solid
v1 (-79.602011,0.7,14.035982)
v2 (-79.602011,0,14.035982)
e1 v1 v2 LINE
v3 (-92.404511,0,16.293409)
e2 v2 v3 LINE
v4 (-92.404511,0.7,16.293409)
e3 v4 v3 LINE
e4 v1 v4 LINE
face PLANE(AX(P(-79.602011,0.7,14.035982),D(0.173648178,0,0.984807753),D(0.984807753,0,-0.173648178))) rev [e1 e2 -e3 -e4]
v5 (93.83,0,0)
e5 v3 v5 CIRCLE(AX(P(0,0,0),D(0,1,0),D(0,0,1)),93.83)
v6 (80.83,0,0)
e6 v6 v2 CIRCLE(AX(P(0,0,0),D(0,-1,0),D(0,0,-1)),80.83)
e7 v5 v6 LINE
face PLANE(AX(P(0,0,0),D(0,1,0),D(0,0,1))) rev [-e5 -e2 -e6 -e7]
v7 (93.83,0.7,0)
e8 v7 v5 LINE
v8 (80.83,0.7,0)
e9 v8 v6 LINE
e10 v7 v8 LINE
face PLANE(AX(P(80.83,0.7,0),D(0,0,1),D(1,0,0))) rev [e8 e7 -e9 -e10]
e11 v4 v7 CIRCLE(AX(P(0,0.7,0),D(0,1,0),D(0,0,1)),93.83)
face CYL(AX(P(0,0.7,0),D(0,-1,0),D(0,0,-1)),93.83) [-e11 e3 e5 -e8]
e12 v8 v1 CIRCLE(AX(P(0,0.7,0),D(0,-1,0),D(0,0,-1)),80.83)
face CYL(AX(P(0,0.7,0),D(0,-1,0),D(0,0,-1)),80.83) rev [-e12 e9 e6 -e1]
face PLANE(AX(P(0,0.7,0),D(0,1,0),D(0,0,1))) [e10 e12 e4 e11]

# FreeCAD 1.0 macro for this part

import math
import FreeCAD as App
import Part
import Sketcher

V = App.Vector
Q = App.Units.Quantity

doc = App.newDocument("Part")
body = doc.addObject("PartDesign::Body", "Body")

# Sketch on XZ plane
sketch1 = body.newObject("Sketcher::SketchObject", "Sketch")
sketch1.AttachmentSupport = (doc.getObject("XZ_Plane"), [""])
sketch1.MapMode = "FlatFace"
sketch1.addGeometry(Part.LineSegment(V(-79.602011, 14.035982, 0), V(-92.404511, 16.293409, 0)), False)
sketch1.addGeometry(Part.ArcOfCircle(Part.Circle(V(0, 0, 0), V(0, 0, 1), 93.83), math.radians(0), math.radians(170)), False)
sketch1.addGeometry(Part.LineSegment(V(93.83, 0, 0), V(80.83, 0, 0)), False)
sketch1.addGeometry(Part.ArcOfCircle(Part.Circle(V(0, 0, 0), V(0, 0, 1), 80.83), math.radians(0), math.radians(170)), False)
sketch1.addConstraint(Sketcher.Constraint("Coincident", 0, 2, 1, 2))
sketch1.addConstraint(Sketcher.Constraint("Coincident", 1, 1, 2, 1))
sketch1.addConstraint(Sketcher.Constraint("Coincident", 2, 2, 3, 1))
sketch1.addConstraint(Sketcher.Constraint("Coincident", 3, 2, 0, 1))
sketch1.addConstraint(Sketcher.Constraint("Horizontal", 2))
sketch1.addConstraint(Sketcher.Constraint("Coincident", 1, 3, -1, 1))
sketch1.addConstraint(Sketcher.Constraint("Coincident", 3, 3, -1, 1))
sketch1.addConstraint(Sketcher.Constraint("PointOnObject", 1, 1, -1))
sketch1.addConstraint(Sketcher.Constraint("DistanceX", 2, 2, 2, 1, 13.0))
sketch1.addConstraint(Sketcher.Constraint("Angle", 0, Q("170 deg")))
sketch1.addConstraint(Sketcher.Constraint("Radius", 1, 93.83))
sketch1.addConstraint(Sketcher.Constraint("DistanceX", 0, 2, -1, 1, 92.404511))
pad1 = body.newObject("PartDesign::Pad", "Pad")
pad1.Profile = sketch1
pad1.Length = 0.7
pad1.Reversed = True

doc.recompute()
